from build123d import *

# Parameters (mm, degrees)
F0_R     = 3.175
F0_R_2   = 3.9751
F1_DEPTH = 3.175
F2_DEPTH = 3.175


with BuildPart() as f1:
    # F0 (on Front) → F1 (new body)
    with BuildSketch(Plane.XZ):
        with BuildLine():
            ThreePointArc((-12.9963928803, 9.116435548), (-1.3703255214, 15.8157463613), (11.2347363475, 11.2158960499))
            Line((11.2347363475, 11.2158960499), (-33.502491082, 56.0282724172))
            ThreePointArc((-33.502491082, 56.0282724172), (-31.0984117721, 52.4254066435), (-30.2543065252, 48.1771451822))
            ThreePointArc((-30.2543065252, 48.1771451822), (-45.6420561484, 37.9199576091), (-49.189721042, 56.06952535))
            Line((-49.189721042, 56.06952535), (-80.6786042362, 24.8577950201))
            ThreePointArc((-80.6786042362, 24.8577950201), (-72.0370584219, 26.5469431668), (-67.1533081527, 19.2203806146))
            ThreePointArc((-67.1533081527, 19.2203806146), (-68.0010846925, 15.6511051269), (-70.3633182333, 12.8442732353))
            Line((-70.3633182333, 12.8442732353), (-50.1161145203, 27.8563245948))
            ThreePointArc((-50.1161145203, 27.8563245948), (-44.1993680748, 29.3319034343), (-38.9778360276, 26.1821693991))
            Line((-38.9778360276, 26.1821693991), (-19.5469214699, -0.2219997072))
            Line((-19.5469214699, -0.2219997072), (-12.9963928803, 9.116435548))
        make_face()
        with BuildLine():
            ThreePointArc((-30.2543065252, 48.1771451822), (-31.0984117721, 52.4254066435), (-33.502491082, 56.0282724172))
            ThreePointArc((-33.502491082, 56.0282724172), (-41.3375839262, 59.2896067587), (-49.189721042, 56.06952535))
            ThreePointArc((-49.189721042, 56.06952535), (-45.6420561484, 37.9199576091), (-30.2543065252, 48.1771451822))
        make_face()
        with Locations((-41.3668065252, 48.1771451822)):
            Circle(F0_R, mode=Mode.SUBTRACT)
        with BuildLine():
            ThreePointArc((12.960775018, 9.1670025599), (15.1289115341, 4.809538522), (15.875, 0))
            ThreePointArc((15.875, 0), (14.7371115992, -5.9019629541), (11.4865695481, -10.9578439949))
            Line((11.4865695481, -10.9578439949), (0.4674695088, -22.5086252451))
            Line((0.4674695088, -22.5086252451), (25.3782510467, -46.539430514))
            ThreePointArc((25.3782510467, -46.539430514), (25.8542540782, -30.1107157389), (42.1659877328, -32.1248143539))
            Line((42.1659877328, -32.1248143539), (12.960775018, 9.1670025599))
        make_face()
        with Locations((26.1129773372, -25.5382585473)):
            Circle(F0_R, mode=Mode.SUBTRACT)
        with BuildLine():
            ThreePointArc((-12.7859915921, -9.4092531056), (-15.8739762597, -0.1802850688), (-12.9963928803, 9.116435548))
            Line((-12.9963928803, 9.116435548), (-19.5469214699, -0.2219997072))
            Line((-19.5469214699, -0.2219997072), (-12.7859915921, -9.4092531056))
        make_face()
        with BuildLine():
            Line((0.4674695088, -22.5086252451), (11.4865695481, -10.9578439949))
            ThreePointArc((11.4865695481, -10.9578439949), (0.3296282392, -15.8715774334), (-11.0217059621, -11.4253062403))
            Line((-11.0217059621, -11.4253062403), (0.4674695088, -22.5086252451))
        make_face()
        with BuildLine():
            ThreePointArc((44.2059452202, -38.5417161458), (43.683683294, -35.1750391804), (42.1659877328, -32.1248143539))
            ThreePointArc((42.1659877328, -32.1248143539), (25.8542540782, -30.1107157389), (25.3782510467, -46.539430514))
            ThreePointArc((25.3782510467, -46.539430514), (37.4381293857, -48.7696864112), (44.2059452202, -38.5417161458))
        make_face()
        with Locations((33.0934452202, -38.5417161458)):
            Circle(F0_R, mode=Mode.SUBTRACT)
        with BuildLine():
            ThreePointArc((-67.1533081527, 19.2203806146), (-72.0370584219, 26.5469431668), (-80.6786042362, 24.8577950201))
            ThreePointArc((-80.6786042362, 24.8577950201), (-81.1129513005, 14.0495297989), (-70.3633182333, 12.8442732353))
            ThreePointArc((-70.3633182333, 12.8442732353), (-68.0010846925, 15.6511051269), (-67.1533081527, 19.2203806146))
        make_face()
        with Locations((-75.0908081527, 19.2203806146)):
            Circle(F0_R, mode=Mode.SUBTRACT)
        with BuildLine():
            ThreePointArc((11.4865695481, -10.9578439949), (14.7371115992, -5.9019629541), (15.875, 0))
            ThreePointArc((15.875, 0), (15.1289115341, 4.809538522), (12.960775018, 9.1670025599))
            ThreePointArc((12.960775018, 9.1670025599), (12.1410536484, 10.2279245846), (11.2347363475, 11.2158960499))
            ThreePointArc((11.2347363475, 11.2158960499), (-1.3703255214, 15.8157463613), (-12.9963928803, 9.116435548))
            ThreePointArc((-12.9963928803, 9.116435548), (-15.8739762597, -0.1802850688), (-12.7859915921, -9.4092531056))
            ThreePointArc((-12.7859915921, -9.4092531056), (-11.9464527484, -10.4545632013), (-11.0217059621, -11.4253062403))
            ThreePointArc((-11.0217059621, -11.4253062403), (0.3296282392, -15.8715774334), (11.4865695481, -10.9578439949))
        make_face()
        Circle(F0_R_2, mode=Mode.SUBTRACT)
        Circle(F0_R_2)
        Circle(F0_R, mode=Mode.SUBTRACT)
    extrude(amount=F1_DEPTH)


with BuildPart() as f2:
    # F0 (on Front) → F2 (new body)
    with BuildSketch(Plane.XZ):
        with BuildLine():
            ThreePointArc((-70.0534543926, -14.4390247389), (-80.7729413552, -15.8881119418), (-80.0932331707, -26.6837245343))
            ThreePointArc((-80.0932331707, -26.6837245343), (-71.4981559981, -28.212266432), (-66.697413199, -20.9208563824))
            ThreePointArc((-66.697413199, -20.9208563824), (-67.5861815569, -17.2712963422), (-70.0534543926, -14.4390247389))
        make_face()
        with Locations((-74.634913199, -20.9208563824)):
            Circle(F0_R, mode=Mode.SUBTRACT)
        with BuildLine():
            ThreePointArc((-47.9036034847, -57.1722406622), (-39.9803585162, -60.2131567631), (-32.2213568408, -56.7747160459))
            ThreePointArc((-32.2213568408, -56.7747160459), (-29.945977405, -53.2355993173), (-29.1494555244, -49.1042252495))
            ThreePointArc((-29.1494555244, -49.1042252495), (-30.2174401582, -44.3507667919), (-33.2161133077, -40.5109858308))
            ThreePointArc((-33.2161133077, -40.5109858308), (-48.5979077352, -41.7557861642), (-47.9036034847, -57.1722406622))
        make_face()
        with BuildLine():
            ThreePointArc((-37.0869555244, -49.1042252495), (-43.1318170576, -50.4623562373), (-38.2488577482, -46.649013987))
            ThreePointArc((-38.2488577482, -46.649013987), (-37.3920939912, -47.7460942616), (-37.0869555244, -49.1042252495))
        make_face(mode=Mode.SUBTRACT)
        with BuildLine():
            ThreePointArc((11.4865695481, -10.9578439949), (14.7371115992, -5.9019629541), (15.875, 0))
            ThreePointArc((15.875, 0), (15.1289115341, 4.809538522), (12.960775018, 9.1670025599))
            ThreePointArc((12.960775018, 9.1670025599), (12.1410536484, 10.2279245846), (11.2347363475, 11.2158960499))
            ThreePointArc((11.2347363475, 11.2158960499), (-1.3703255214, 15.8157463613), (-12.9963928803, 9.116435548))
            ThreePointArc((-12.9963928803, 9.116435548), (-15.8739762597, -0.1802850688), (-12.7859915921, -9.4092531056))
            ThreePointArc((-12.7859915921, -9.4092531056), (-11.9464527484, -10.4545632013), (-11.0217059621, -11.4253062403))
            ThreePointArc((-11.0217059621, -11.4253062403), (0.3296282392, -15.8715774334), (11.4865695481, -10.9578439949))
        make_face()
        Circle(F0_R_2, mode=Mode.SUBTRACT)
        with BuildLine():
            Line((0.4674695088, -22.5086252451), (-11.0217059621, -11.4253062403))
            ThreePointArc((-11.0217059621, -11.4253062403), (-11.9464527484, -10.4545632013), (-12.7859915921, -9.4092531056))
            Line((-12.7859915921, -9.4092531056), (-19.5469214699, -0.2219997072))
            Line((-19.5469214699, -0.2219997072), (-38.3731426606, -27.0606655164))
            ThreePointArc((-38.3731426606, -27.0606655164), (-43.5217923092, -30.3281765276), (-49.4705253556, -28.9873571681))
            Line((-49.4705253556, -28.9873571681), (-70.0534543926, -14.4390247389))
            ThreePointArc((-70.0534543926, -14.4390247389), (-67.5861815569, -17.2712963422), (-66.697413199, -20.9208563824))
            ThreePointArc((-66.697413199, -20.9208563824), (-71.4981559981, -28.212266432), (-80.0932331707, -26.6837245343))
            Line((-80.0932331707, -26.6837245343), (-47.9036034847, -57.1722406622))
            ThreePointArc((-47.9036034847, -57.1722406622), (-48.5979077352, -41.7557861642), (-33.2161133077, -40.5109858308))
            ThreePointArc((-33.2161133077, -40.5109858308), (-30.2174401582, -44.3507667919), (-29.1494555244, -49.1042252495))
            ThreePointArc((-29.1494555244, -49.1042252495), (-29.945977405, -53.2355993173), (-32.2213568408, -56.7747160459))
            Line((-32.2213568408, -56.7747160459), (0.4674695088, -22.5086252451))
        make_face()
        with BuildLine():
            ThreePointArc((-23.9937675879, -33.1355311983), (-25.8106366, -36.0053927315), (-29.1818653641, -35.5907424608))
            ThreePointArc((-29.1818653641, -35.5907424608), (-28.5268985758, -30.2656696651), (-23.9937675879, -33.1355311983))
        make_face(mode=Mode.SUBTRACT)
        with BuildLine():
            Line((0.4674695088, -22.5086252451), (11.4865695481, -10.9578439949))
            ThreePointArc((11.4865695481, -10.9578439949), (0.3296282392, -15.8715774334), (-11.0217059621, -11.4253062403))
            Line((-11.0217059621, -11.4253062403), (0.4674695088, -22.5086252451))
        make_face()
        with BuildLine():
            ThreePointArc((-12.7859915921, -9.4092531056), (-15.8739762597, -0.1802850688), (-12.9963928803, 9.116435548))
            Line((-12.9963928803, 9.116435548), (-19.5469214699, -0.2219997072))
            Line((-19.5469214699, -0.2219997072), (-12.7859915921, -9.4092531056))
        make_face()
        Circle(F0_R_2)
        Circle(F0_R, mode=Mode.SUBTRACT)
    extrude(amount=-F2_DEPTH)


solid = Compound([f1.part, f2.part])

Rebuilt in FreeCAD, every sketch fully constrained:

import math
import FreeCAD as App
import Part
import Sketcher
Q = App.Units.Quantity

doc = App.newDocument("Part")
body = doc.addObject("PartDesign::Body", "Body")

# Sketch on XZ plane
sketch1 = body.newObject("Sketcher::SketchObject", "Sketch")
sketch1.AttachmentSupport = (doc.getObject("XZ_Plane"), [""])
sketch1.MapMode = "FlatFace"
sketch1.addGeometry(Part.LineSegment(App.Vector(11.234736, 11.215896, 0), App.Vector(-33.502491, 56.028272, 0)), False)
sketch1.addGeometry(Part.ArcOfCircle(Part.Circle(App.Vector(-41.366807, 48.177145, 0), App.Vector(0, 0, 1), 11.1125), math.radians(44.951918), math.radians(134.74674)), False)
sketch1.addGeometry(Part.LineSegment(App.Vector(-49.189721, 56.069525, 0), App.Vector(-80.678604, 24.857795, 0)), False)
sketch1.addGeometry(Part.ArcOfCircle(Part.Circle(App.Vector(-75.090808, 19.220381, 0), App.Vector(0, 0, 1), 7.9375), math.radians(134.74674), math.radians(306.554652)), False)
sketch1.addGeometry(Part.LineSegment(App.Vector(-70.363318, 12.844273, 0), App.Vector(-50.116115, 27.856325, 0)), False)
sketch1.addGeometry(Part.ArcOfCircle(Part.Circle(App.Vector(-45.381061, 21.470015, 0), App.Vector(0, 0, 1), 7.9502), math.radians(36.349473), math.radians(126.554652)), False)
sketch1.addGeometry(Part.LineSegment(App.Vector(-38.977836, 26.182169, 0), App.Vector(-19.546921, -0.222, 0)), False)
sketch1.addGeometry(Part.LineSegment(App.Vector(-19.546921, -0.222, 0), App.Vector(-12.785992, -9.409253, 0)), False)
sketch1.addGeometry(Part.ArcOfCircle(Part.Circle(App.Vector(0, 0, 0), App.Vector(0, 0, 1), 15.875), math.radians(-143.650527), math.radians(-133.969925)), False)
sketch1.addGeometry(Part.LineSegment(App.Vector(-11.021706, -11.425306, 0), App.Vector(0.46747, -22.508625, 0)), False)
sketch1.addGeometry(Part.LineSegment(App.Vector(0.46747, -22.508625, 0), App.Vector(25.378251, -46.539431, 0)), False)
sketch1.addGeometry(Part.ArcOfCircle(Part.Circle(App.Vector(33.093445, -38.541716, 0), App.Vector(0, 0, 1), 11.1125), math.radians(-133.969925), math.radians(0)), False)
sketch1.addGeometry(Part.ArcOfCircle(Part.Circle(App.Vector(33.093445, -38.541716, 0), App.Vector(0, 0, 1), 11.1125), math.radians(0), math.radians(35.271317)), False)
sketch1.addGeometry(Part.LineSegment(App.Vector(42.165988, -32.124814, 0), App.Vector(12.960775, 9.167003, 0)), False)
sketch1.addGeometry(Part.ArcOfCircle(Part.Circle(App.Vector(0, 0, 0), App.Vector(0, 0, 1), 15.875), math.radians(35.271317), math.radians(44.951918)), False)
sketch1.addGeometry(Part.Circle(App.Vector(33.093445, -38.541716, 0), App.Vector(0, 0, 1), 3.175), False)
sketch1.addGeometry(Part.Circle(App.Vector(26.112977, -25.538259, 0), App.Vector(0, 0, 1), 3.175), False)
sketch1.addGeometry(Part.Circle(App.Vector(0, 0, 0), App.Vector(0, 0, 1), 3.175), False)
sketch1.addGeometry(Part.Circle(App.Vector(-75.090808, 19.220381, 0), App.Vector(0, 0, 1), 3.175), False)
sketch1.addGeometry(Part.Circle(App.Vector(-41.366807, 48.177145, 0), App.Vector(0, 0, 1), 3.175), False)
sketch1.addConstraint(Sketcher.Constraint("Tangent", 0, 2, 1, 1))
sketch1.addConstraint(Sketcher.Constraint("Tangent", 1, 2, 2, 1))
sketch1.addConstraint(Sketcher.Constraint("Tangent", 2, 2, 3, 1))
sketch1.addConstraint(Sketcher.Constraint("Tangent", 3, 2, 4, 1))
sketch1.addConstraint(Sketcher.Constraint("Tangent", 4, 2, 5, 2))
sketch1.addConstraint(Sketcher.Constraint("Tangent", 5, 1, 6, 1))
sketch1.addConstraint(Sketcher.Constraint("Coincident", 6, 2, 7, 1))
sketch1.addConstraint(Sketcher.Constraint("Tangent", 7, 2, 8, 1))
sketch1.addConstraint(Sketcher.Constraint("Tangent", 8, 2, 9, 1))
sketch1.addConstraint(Sketcher.Constraint("Coincident", 9, 2, 10, 1))
sketch1.addConstraint(Sketcher.Constraint("Tangent", 10, 2, 11, 1))
sketch1.addConstraint(Sketcher.Constraint("Tangent", 11, 2, 12, 1))
sketch1.addConstraint(Sketcher.Constraint("Tangent", 12, 2, 13, 1))
sketch1.addConstraint(Sketcher.Constraint("Tangent", 13, 2, 14, 1))
sketch1.addConstraint(Sketcher.Constraint("Tangent", 14, 2, 0, 1))
sketch1.addConstraint(Sketcher.Constraint("Coincident", 8, 3, -1, 1))
sketch1.addConstraint(Sketcher.Constraint("Coincident", 14, 3, -1, 1))
sketch1.addConstraint(Sketcher.Constraint("Coincident", 17, 3, -1, 1))
sketch1.addConstraint(Sketcher.Constraint("Coincident", 15, 3, 11, 3))
sketch1.addConstraint(Sketcher.Constraint("Coincident", 18, 3, 3, 3))
sketch1.addConstraint(Sketcher.Constraint("Coincident", 19, 3, 1, 3))
sketch1.addConstraint(Sketcher.Constraint("Equal", 1, 11))
sketch1.addConstraint(Sketcher.Constraint("Equal", 11, 12))
sketch1.addConstraint(Sketcher.Constraint("Equal", 8, 14))
sketch1.addConstraint(Sketcher.Constraint("Equal", 15, 16))
sketch1.addConstraint(Sketcher.Constraint("Equal", 16, 17))
sketch1.addConstraint(Sketcher.Constraint("Equal", 17, 18))
sketch1.addConstraint(Sketcher.Constraint("Equal", 18, 19))
sketch1.addConstraint(Sketcher.Constraint("Parallel", 6, 7))
sketch1.addConstraint(Sketcher.Constraint("Parallel", 9, 10))
sketch1.addConstraint(Sketcher.Constraint("Horizontal", 15, 3, 11, 2))
sketch1.addConstraint(Sketcher.Constraint("Diameter", 15, Q("0.25 in")))
sketch1.addConstraint(Sketcher.Constraint("Radius", 1, Q("0.4375 in")))
sketch1.addConstraint(Sketcher.Constraint("Radius", 3, Q("0.3125 in")))
sketch1.addConstraint(Sketcher.Constraint("Radius", 5, Q("0.313 in")))
sketch1.addConstraint(Sketcher.Constraint("Radius", 8, Q("0.625 in")))
sketch1.addConstraint(Sketcher.Constraint("DistanceY", 6, 2, -1, 1, Q("0.222 mm")))
sketch1.addConstraint(Sketcher.Constraint("DistanceX", 3, 3, 1, 3, Q("33.724002 mm")))
sketch1.addConstraint(Sketcher.Constraint("DistanceY", 11, 2, 12, 2, Q("6.416902 mm")))
sketch1.addConstraint(Sketcher.Constraint("Distance", 7, Q("11.406831 mm")))
sketch1.addConstraint(Sketcher.Constraint("Distance", 10, Q("34.612521 mm")))
sketch1.addConstraint(Sketcher.Constraint("DistanceX", 3, 3, -1, 1, Q("75.090808 mm")))
sketch1.addConstraint(Sketcher.Constraint("DistanceY", -1, 1, 3, 3, Q("19.220381 mm")))
sketch1.addConstraint(Sketcher.Constraint("DistanceX", 5, 3, -1, 1, Q("45.381061 mm")))
sketch1.addConstraint(Sketcher.Constraint("DistanceY", 16, 3, -1, 1, Q("25.538259 mm")))
sketch1.addConstraint(Sketcher.Constraint("DistanceX", 0, 2, -1, 1, Q("33.502491 mm")))
sketch1.addConstraint(Sketcher.Constraint("DistanceX", -1, 1, 9, 2, Q("0.46747 mm")))
sketch1.addConstraint(Sketcher.Constraint("DistanceX", 7, 2, 16, 3, Q("38.898969 mm")))
pad1 = body.newObject("PartDesign::Pad", "Pad")
pad1.Profile = sketch1
pad1.Length = Q("0.125 in")
body2 = doc.addObject("PartDesign::Body", "Body001")

# Sketch on XZ plane
sketch2 = body2.newObject("Sketcher::SketchObject", "Sketch001")
sketch2.AttachmentSupport = (doc.getObject("XZ_Plane001"), [""])
sketch2.MapMode = "FlatFace"
sketch2.addGeometry(Part.ArcOfCircle(Part.Circle(App.Vector(-74.634913, -20.920856, 0), App.Vector(0, 0, 1), 7.9375), math.radians(54.74674), math.radians(226.554652)), False)
sketch2.addGeometry(Part.LineSegment(App.Vector(-80.093233, -26.683725, 0), App.Vector(-47.903603, -57.172241, 0)), False)
sketch2.addGeometry(Part.ArcOfCircle(Part.Circle(App.Vector(-40.261956, -49.104225, 0), App.Vector(0, 0, 1), 11.1125), math.radians(-133.445348), math.radians(-43.650527)), False)
sketch2.addGeometry(Part.LineSegment(App.Vector(-32.221357, -56.774716, 0), App.Vector(11.48657, -10.957844, 0)), False)
sketch2.addGeometry(Part.ArcOfCircle(Part.Circle(App.Vector(0, 0, 0), App.Vector(0, 0, 1), 15.875), math.radians(-43.650527), math.radians(0)), False)
sketch2.addGeometry(Part.ArcOfCircle(Part.Circle(App.Vector(0, 0, 0), App.Vector(0, 0, 1), 15.875), math.radians(0), math.radians(35.271317)), False)
sketch2.addGeometry(Part.ArcOfCircle(Part.Circle(App.Vector(0, 0, 0), App.Vector(0, 0, 1), 15.875), math.radians(35.271317), math.radians(44.951918)), False)
sketch2.addGeometry(Part.ArcOfCircle(Part.Circle(App.Vector(0, 0, 0), App.Vector(0, 0, 1), 15.875), math.radians(44.951918), math.radians(144.951918)), False)
sketch2.addGeometry(Part.LineSegment(App.Vector(-12.996393, 9.116436, 0), App.Vector(-19.546921, -0.222, 0)), False)
sketch2.addGeometry(Part.LineSegment(App.Vector(-19.546921, -0.222, 0), App.Vector(-38.373143, -27.060666, 0)), False)
sketch2.addGeometry(Part.ArcOfCircle(Part.Circle(App.Vector(-44.881736, -22.495155, 0), App.Vector(0, 0, 1), 7.9502), math.radians(-125.25326), math.radians(-35.048082)), False)
sketch2.addGeometry(Part.LineSegment(App.Vector(-49.470525, -28.987357, 0), App.Vector(-70.053454, -14.439025, 0)), False)
sketch2.addGeometry(Part.Circle(App.Vector(-40.261956, -49.104225, 0), App.Vector(0, 0, 1), 3.175), False)
sketch2.addGeometry(Part.ArcOfCircle(Part.Circle(App.Vector(-27.168768, -33.135531, 0), App.Vector(0, 0, 1), 3.175), math.radians(0), math.radians(230.650696)), False)
sketch2.addGeometry(Part.ArcOfCircle(Part.Circle(App.Vector(-27.168768, -33.135531, 0), App.Vector(0, 0, 1), 3.175), math.radians(-129.349304), math.radians(0)), False)
sketch2.addGeometry(Part.Circle(App.Vector(-74.634913, -20.920856, 0), App.Vector(0, 0, 1), 3.175), False)
sketch2.addGeometry(Part.Circle(App.Vector(0, 0, 0), App.Vector(0, 0, 1), 3.175), False)
sketch2.addConstraint(Sketcher.Constraint("Tangent", 0, 2, 1, 1))
sketch2.addConstraint(Sketcher.Constraint("Tangent", 1, 2, 2, 1))
sketch2.addConstraint(Sketcher.Constraint("Tangent", 2, 2, 3, 1))
sketch2.addConstraint(Sketcher.Constraint("Tangent", 3, 2, 4, 1))
sketch2.addConstraint(Sketcher.Constraint("Tangent", 4, 2, 5, 1))
sketch2.addConstraint(Sketcher.Constraint("Tangent", 5, 2, 6, 1))
sketch2.addConstraint(Sketcher.Constraint("Tangent", 6, 2, 7, 1))
sketch2.addConstraint(Sketcher.Constraint("Tangent", 7, 2, 8, 1))
sketch2.addConstraint(Sketcher.Constraint("Coincident", 8, 2, 9, 1))
sketch2.addConstraint(Sketcher.Constraint("Tangent", 9, 2, 10, 2))
sketch2.addConstraint(Sketcher.Constraint("Tangent", 10, 1, 11, 1))
sketch2.addConstraint(Sketcher.Constraint("Tangent", 11, 2, 0, 1))
sketch2.addConstraint(Sketcher.Constraint("Tangent", 13, 1, 14, 2))
sketch2.addConstraint(Sketcher.Constraint("Coincident", 14, 1, 13, 2))
sketch2.addConstraint(Sketcher.Constraint("Coincident", 4, 3, -1, 1))
sketch2.addConstraint(Sketcher.Constraint("Coincident", 6, 3, -1, 1))
sketch2.addConstraint(Sketcher.Constraint("Coincident", 16, 3, -1, 1))
sketch2.addConstraint(Sketcher.Constraint("Coincident", 12, 3, 2, 3))
sketch2.addConstraint(Sketcher.Constraint("Coincident", 15, 3, 0, 3))
sketch2.addConstraint(Sketcher.Constraint("Equal", 6, 7))
sketch2.addConstraint(Sketcher.Constraint("Equal", 12, 13))
sketch2.addConstraint(Sketcher.Constraint("Equal", 14, 15))
sketch2.addConstraint(Sketcher.Constraint("Equal", 15, 16))
sketch2.addConstraint(Sketcher.Constraint("PointOnObject", 4, 2, -1))
sketch2.addConstraint(Sketcher.Constraint("Parallel", 8, 9))
sketch2.addConstraint(Sketcher.Constraint("Horizontal", 14, 3, 13, 1))
sketch2.addConstraint(Sketcher.Constraint("Diameter", 12, Q("0.25 in")))
sketch2.addConstraint(Sketcher.Constraint("Radius", 0, Q("0.3125 in")))
sketch2.addConstraint(Sketcher.Constraint("Radius", 2, Q("0.4375 in")))
sketch2.addConstraint(Sketcher.Constraint("Radius", 4, Q("0.625 in")))
sketch2.addConstraint(Sketcher.Constraint("Radius", 10, Q("0.313 in")))
sketch2.addConstraint(Sketcher.Constraint("DistanceY", 8, 2, -1, 1, Q("0.222 mm")))
sketch2.addConstraint(Sketcher.Constraint("DistanceY", 10, 3, 0, 3, Q("1.574298 mm")))
sketch2.addConstraint(Sketcher.Constraint("DistanceY", 12, 3, 0, 2, Q("22.420501 mm")))
sketch2.addConstraint(Sketcher.Constraint("DistanceX", 2, 3, 2, 2, Q("8.040599 mm")))
sketch2.addConstraint(Sketcher.Constraint("DistanceY", 0, 2, 11, 2, Q("12.2447 mm")))
sketch2.addConstraint(Sketcher.Constraint("Distance", 8, Q("11.406831 mm")))
sketch2.addConstraint(Sketcher.Constraint("DistanceY", 13, 3, -1, 1, Q("33.135531 mm")))
sketch2.addConstraint(Sketcher.Constraint("DistanceY", 1, 2, -1, 1, Q("57.172241 mm")))
sketch2.addConstraint(Sketcher.Constraint("DistanceX", 10, 3, 13, 3, Q("17.712969 mm")))
sketch2.addConstraint(Sketcher.Constraint("DistanceX", 6, 2, 5, 2, Q("1.726039 mm")))
sketch2.addConstraint(Sketcher.Constraint("DistanceY", 14, 1, 13, 3, Q("2.455211 mm")))
sketch2.addConstraint(Sketcher.Constraint("DistanceX", -1, 1, 5, 2, Q("12.960775 mm")))
pad2 = body2.newObject("PartDesign::Pad", "Pad001")
pad2.Profile = sketch2
pad2.Length = Q("0.125 in")
pad2.Reversed = True

doc.recompute()
